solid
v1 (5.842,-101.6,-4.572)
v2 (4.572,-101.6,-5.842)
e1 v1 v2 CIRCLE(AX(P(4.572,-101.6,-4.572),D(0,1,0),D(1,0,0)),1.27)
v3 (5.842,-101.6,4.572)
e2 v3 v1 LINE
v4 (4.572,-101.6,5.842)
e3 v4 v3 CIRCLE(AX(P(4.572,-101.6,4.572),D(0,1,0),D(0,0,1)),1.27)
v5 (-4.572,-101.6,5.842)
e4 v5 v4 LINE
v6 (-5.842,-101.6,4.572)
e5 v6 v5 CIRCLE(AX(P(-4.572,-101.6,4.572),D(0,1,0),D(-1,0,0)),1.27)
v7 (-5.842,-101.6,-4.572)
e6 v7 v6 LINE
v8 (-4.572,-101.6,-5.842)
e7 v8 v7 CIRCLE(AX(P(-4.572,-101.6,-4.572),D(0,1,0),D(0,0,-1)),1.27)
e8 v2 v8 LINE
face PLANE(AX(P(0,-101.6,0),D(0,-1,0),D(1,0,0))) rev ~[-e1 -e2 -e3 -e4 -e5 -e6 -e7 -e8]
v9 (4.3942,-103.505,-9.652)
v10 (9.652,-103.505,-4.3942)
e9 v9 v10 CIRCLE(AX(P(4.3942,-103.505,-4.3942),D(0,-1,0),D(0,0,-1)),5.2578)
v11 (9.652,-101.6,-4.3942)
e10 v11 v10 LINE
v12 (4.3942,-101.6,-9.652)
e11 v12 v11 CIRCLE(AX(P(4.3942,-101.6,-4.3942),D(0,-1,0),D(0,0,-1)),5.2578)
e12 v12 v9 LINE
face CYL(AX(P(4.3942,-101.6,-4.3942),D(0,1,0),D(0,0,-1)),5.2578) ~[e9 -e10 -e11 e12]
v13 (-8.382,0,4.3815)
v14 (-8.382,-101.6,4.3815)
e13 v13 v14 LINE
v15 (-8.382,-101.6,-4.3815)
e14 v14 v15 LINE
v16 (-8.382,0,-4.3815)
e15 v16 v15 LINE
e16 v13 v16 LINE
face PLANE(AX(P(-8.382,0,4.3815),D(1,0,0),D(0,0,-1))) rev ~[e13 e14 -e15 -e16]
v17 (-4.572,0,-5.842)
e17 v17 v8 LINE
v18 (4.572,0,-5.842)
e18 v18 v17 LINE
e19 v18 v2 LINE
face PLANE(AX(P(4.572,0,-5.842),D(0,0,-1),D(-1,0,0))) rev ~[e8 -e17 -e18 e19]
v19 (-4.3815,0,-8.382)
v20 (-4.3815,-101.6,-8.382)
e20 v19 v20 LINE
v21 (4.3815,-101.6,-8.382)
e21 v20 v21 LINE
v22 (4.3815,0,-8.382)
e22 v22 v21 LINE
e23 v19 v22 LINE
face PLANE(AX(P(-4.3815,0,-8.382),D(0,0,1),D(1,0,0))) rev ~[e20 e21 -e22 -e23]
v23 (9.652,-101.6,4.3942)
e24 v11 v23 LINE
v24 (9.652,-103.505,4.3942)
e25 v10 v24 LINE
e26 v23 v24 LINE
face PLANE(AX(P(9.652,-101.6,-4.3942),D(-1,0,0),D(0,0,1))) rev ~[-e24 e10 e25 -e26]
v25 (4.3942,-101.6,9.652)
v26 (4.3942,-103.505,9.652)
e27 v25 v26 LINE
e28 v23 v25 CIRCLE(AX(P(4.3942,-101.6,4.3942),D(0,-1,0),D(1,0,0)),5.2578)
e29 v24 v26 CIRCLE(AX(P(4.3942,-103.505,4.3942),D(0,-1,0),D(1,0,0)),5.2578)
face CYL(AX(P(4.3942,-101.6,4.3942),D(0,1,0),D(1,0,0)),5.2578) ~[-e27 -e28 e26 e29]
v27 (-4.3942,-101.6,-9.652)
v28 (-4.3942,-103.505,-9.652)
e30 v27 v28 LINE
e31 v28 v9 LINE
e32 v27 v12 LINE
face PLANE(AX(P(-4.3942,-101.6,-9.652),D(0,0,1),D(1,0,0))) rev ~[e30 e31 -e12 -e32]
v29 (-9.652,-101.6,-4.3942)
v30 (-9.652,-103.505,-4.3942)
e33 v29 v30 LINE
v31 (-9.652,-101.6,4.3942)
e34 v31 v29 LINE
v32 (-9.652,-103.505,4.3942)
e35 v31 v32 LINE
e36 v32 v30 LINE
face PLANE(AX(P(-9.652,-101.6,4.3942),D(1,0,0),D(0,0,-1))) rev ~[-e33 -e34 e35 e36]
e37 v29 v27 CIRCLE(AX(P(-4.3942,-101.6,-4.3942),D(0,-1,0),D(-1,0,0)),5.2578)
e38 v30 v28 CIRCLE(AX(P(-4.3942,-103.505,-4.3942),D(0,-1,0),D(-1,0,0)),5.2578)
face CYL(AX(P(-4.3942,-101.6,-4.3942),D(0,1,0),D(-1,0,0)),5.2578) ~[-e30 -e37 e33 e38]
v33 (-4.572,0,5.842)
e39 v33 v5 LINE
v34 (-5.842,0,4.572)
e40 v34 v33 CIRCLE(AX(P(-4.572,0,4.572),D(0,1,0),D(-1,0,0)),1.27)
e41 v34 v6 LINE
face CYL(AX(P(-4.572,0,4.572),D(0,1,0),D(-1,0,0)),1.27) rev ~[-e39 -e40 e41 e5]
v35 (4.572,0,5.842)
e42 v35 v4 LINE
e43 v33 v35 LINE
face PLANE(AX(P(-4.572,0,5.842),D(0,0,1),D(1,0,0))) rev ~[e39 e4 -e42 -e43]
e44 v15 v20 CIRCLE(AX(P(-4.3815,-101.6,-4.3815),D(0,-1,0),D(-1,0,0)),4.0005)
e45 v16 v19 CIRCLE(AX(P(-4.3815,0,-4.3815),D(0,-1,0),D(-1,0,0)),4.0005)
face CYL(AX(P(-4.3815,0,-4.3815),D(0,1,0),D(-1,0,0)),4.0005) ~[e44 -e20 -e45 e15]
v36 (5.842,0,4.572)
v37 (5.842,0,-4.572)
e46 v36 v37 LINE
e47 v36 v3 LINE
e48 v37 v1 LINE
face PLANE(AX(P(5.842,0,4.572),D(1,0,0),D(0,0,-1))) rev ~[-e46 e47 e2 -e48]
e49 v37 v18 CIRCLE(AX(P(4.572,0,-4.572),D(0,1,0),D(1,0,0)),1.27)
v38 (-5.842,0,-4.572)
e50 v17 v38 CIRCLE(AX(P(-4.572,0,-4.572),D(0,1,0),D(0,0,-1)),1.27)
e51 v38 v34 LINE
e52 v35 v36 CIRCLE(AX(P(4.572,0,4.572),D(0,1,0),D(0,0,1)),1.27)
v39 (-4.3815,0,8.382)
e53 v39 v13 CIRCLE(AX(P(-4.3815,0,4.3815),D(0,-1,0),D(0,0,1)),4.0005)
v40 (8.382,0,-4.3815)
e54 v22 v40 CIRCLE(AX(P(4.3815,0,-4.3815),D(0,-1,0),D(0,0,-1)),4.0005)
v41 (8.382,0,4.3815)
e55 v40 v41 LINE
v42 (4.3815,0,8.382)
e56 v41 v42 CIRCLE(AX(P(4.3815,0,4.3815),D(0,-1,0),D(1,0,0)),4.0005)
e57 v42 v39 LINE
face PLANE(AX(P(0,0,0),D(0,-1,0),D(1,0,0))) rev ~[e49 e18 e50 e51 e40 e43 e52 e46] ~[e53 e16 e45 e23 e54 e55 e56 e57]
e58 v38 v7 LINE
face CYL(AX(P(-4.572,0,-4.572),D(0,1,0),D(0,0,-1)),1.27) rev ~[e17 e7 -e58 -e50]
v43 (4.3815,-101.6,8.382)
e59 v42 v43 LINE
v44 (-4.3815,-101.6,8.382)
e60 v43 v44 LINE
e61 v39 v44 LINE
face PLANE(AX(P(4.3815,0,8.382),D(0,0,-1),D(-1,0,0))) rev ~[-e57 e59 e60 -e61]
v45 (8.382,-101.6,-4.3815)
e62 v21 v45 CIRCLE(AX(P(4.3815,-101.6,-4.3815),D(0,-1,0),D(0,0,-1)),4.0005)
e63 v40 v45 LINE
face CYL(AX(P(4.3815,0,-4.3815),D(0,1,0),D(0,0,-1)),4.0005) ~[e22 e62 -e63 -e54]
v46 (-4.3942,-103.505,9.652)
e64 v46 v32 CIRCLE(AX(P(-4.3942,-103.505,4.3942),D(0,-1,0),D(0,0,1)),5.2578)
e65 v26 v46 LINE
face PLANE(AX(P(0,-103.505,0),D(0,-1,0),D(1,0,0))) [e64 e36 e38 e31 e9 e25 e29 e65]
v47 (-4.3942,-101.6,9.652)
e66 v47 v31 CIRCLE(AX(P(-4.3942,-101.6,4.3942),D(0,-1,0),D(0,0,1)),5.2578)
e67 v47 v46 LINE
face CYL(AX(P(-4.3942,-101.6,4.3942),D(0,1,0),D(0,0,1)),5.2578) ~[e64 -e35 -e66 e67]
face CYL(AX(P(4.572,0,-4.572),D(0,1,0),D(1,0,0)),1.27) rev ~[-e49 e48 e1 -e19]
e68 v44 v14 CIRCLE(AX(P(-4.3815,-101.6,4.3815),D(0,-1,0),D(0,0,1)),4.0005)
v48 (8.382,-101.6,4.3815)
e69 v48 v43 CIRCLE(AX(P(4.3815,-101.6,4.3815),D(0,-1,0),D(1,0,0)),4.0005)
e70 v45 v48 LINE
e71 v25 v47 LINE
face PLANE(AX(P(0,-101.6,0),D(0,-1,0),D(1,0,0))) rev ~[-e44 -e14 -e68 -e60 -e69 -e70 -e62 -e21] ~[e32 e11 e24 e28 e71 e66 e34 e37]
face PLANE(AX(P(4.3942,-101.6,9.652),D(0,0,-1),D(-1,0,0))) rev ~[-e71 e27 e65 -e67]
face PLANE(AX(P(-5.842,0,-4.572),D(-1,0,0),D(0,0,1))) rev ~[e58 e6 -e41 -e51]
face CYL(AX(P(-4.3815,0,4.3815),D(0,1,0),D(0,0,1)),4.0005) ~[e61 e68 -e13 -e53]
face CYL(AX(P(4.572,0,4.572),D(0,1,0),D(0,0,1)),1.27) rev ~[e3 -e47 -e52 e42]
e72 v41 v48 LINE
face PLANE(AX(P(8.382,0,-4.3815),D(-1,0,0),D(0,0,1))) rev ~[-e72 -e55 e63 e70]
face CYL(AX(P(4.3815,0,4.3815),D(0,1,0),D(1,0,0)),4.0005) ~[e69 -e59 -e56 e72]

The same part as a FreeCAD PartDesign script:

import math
import FreeCAD as App
import Part
import Sketcher
from FreeCAD import Vector
Q = App.Units.Quantity

doc = App.newDocument("Part")
body = doc.addObject("PartDesign::Body", "Body")

# Sketch on XZ plane
sketch1 = body.newObject("Sketcher::SketchObject", "Sketch")
sketch1.AttachmentSupport = (doc.getObject("XZ_Plane"), [""])
sketch1.MapMode = "FlatFace"
sketch1.addGeometry([
    Part.LineSegment(Vector(-4.4, -8.4, 0), Vector(4.4, -8.4, 0)),  # 0
    Part.ArcOfCircle(Part.Circle(Vector(4.4, -4.4, 0), Vector(0, 0, 1), 4), math.radians(-90), math.radians(0)),  # 1
    Part.LineSegment(Vector(8.4, -4.4, 0), Vector(8.4, 4.4, 0)),  # 2
    Part.ArcOfCircle(Part.Circle(Vector(4.4, 4.4, 0), Vector(0, 0, 1), 4), math.radians(0), math.radians(90)),  # 3
    Part.LineSegment(Vector(4.4, 8.4, 0), Vector(-4.4, 8.4, 0)),  # 4
    Part.ArcOfCircle(Part.Circle(Vector(-4.4, 4.4, 0), Vector(0, 0, 1), 4), math.radians(90), math.radians(180)),  # 5
    Part.LineSegment(Vector(-8.4, 4.4, 0), Vector(-8.4, -4.4, 0)),  # 6
    Part.ArcOfCircle(Part.Circle(Vector(-4.4, -4.4, 0), Vector(0, 0, 1), 4), math.radians(180), math.radians(270)),  # 7
    Part.ArcOfCircle(Part.Circle(Vector(-4.6, 4.6, 0), Vector(0, 0, 1), 1.3), math.radians(90), math.radians(180)),  # 8
    Part.LineSegment(Vector(-4.6, 5.8, 0), Vector(4.6, 5.8, 0)),  # 9
    Part.ArcOfCircle(Part.Circle(Vector(4.6, 4.6, 0), Vector(0, 0, 1), 1.3), math.radians(0), math.radians(90)),  # 10
    Part.LineSegment(Vector(5.8, 4.6, 0), Vector(5.8, -4.6, 0)),  # 11
    Part.ArcOfCircle(Part.Circle(Vector(4.6, -4.6, 0), Vector(0, 0, 1), 1.3), math.radians(-90), math.radians(0)),  # 12
    Part.LineSegment(Vector(4.6, -5.8, 0), Vector(-4.6, -5.8, 0)),  # 13
    Part.ArcOfCircle(Part.Circle(Vector(-4.6, -4.6, 0), Vector(0, 0, 1), 1.3), math.radians(180), math.radians(270)),  # 14
    Part.LineSegment(Vector(-5.8, -4.6, 0), Vector(-5.8, 4.6, 0)),  # 15
], False)
sketch1.addConstraint([
    Sketcher.Constraint("Tangent", 0, 2, 1, 1),
    Sketcher.Constraint("Tangent", 1, 2, 2, 1),
    Sketcher.Constraint("Tangent", 2, 2, 3, 1),
    Sketcher.Constraint("Tangent", 3, 2, 4, 1),
    Sketcher.Constraint("Tangent", 4, 2, 5, 1),
    Sketcher.Constraint("Tangent", 5, 2, 6, 1),
    Sketcher.Constraint("Tangent", 6, 2, 7, 1),
    Sketcher.Constraint("Tangent", 7, 2, 0, 1),
    Sketcher.Constraint("Tangent", 8, 1, 9, 1),
    Sketcher.Constraint("Tangent", 9, 2, 10, 2),
    Sketcher.Constraint("Tangent", 10, 1, 11, 1),
    Sketcher.Constraint("Tangent", 11, 2, 12, 2),
    Sketcher.Constraint("Tangent", 12, 1, 13, 1),
    Sketcher.Constraint("Tangent", 13, 2, 14, 2),
    Sketcher.Constraint("Tangent", 14, 1, 15, 1),
    Sketcher.Constraint("Tangent", 15, 2, 8, 2),
    Sketcher.Constraint("Horizontal", 0),
    Sketcher.Constraint("Vertical", 2),
    Sketcher.Constraint("Horizontal", 4),
    Sketcher.Constraint("Vertical", 6),
    Sketcher.Constraint("Horizontal", 9),
    Sketcher.Constraint("Vertical", 11),
    Sketcher.Constraint("Horizontal", 13),
    Sketcher.Constraint("Vertical", 15),
    Sketcher.Constraint("Equal", 1, 3),
    Sketcher.Constraint("Equal", 3, 5),
    Sketcher.Constraint("Equal", 5, 7),
    Sketcher.Constraint("Equal", 8, 10),
    Sketcher.Constraint("Equal", 10, 12),
    Sketcher.Constraint("Equal", 12, 14),
    Sketcher.Constraint("Symmetric", 1, 3, 5, 3, -1, 1),
    Sketcher.Constraint("Symmetric", 8, 3, 12, 3, -1, 1),
    Sketcher.Constraint("Equal", 4, 2),
    Sketcher.Constraint("Equal", 13, 11),
    Sketcher.Constraint("Radius", 8, Q("0.05 in")),
    Sketcher.Constraint("DistanceX", 9, 1, 9, 2, Q("0.36 in")),
    Sketcher.Constraint("Radius", 1, Q("0.1575 in")),
    Sketcher.Constraint("DistanceY", 8, 1, 4, 2, Q("0.1 in")),
])
pad1 = body.newObject("PartDesign::Pad", "Pad")
pad1.Profile = sketch1
pad1.Length = Q("4 in")

# Sketch on XZ plane
sketch2 = body.newObject("Sketcher::SketchObject", "Sketch001")
sketch2.AttachmentSupport = (doc.getObject("XZ_Plane"), [""])
sketch2.MapMode = "FlatFace"
sketch2.AttachmentOffset = App.Placement(Vector(0, 0, 4 * 25.4), App.Rotation())
sketch2.addGeometry([
    Part.LineSegment(Vector(-4, -10, 0), Vector(4, -10, 0)),  # 0
    Part.ArcOfCircle(Part.Circle(Vector(4, -4, 0), Vector(0, 0, 1), 5), math.radians(-90), math.radians(0)),  # 1
    Part.LineSegment(Vector(10, -4, 0), Vector(10, 4, 0)),  # 2
    Part.ArcOfCircle(Part.Circle(Vector(4, 4, 0), Vector(0, 0, 1), 5), math.radians(0), math.radians(90)),  # 3
    Part.LineSegment(Vector(4, 10, 0), Vector(-4, 10, 0)),  # 4
    Part.ArcOfCircle(Part.Circle(Vector(-4, 4, 0), Vector(0, 0, 1), 5), math.radians(90), math.radians(180)),  # 5
    Part.LineSegment(Vector(-10, 4, 0), Vector(-10, -4, 0)),  # 6
    Part.ArcOfCircle(Part.Circle(Vector(-4, -4, 0), Vector(0, 0, 1), 5), math.radians(180), math.radians(270)),  # 7
], False)
sketch2.addConstraint([
    Sketcher.Constraint("Tangent", 0, 2, 1, 1),
    Sketcher.Constraint("Tangent", 1, 2, 2, 1),
    Sketcher.Constraint("Tangent", 2, 2, 3, 1),
    Sketcher.Constraint("Tangent", 3, 2, 4, 1),
    Sketcher.Constraint("Tangent", 4, 2, 5, 1),
    Sketcher.Constraint("Tangent", 5, 2, 6, 1),
    Sketcher.Constraint("Tangent", 6, 2, 7, 1),
    Sketcher.Constraint("Tangent", 7, 2, 0, 1),
    Sketcher.Constraint("Horizontal", 0),
    Sketcher.Constraint("Vertical", 2),
    Sketcher.Constraint("Horizontal", 4),
    Sketcher.Constraint("Vertical", 6),
    Sketcher.Constraint("Equal", 1, 3),
    Sketcher.Constraint("Equal", 3, 5),
    Sketcher.Constraint("Equal", 5, 7),
    Sketcher.Constraint("Symmetric", 1, 3, 5, 3, -1, 1),
    Sketcher.Constraint("Equal", 4, 2),
    Sketcher.Constraint("Radius", 1, Q("0.207 in")),
    Sketcher.Constraint("DistanceX", 0, 1, 0, 2, Q("0.346 in")),
])
pad2 = body.newObject("PartDesign::Pad", "Pad001")
pad2.Profile = sketch2
pad2.Length = Q("0.075 in")

doc.recompute()
